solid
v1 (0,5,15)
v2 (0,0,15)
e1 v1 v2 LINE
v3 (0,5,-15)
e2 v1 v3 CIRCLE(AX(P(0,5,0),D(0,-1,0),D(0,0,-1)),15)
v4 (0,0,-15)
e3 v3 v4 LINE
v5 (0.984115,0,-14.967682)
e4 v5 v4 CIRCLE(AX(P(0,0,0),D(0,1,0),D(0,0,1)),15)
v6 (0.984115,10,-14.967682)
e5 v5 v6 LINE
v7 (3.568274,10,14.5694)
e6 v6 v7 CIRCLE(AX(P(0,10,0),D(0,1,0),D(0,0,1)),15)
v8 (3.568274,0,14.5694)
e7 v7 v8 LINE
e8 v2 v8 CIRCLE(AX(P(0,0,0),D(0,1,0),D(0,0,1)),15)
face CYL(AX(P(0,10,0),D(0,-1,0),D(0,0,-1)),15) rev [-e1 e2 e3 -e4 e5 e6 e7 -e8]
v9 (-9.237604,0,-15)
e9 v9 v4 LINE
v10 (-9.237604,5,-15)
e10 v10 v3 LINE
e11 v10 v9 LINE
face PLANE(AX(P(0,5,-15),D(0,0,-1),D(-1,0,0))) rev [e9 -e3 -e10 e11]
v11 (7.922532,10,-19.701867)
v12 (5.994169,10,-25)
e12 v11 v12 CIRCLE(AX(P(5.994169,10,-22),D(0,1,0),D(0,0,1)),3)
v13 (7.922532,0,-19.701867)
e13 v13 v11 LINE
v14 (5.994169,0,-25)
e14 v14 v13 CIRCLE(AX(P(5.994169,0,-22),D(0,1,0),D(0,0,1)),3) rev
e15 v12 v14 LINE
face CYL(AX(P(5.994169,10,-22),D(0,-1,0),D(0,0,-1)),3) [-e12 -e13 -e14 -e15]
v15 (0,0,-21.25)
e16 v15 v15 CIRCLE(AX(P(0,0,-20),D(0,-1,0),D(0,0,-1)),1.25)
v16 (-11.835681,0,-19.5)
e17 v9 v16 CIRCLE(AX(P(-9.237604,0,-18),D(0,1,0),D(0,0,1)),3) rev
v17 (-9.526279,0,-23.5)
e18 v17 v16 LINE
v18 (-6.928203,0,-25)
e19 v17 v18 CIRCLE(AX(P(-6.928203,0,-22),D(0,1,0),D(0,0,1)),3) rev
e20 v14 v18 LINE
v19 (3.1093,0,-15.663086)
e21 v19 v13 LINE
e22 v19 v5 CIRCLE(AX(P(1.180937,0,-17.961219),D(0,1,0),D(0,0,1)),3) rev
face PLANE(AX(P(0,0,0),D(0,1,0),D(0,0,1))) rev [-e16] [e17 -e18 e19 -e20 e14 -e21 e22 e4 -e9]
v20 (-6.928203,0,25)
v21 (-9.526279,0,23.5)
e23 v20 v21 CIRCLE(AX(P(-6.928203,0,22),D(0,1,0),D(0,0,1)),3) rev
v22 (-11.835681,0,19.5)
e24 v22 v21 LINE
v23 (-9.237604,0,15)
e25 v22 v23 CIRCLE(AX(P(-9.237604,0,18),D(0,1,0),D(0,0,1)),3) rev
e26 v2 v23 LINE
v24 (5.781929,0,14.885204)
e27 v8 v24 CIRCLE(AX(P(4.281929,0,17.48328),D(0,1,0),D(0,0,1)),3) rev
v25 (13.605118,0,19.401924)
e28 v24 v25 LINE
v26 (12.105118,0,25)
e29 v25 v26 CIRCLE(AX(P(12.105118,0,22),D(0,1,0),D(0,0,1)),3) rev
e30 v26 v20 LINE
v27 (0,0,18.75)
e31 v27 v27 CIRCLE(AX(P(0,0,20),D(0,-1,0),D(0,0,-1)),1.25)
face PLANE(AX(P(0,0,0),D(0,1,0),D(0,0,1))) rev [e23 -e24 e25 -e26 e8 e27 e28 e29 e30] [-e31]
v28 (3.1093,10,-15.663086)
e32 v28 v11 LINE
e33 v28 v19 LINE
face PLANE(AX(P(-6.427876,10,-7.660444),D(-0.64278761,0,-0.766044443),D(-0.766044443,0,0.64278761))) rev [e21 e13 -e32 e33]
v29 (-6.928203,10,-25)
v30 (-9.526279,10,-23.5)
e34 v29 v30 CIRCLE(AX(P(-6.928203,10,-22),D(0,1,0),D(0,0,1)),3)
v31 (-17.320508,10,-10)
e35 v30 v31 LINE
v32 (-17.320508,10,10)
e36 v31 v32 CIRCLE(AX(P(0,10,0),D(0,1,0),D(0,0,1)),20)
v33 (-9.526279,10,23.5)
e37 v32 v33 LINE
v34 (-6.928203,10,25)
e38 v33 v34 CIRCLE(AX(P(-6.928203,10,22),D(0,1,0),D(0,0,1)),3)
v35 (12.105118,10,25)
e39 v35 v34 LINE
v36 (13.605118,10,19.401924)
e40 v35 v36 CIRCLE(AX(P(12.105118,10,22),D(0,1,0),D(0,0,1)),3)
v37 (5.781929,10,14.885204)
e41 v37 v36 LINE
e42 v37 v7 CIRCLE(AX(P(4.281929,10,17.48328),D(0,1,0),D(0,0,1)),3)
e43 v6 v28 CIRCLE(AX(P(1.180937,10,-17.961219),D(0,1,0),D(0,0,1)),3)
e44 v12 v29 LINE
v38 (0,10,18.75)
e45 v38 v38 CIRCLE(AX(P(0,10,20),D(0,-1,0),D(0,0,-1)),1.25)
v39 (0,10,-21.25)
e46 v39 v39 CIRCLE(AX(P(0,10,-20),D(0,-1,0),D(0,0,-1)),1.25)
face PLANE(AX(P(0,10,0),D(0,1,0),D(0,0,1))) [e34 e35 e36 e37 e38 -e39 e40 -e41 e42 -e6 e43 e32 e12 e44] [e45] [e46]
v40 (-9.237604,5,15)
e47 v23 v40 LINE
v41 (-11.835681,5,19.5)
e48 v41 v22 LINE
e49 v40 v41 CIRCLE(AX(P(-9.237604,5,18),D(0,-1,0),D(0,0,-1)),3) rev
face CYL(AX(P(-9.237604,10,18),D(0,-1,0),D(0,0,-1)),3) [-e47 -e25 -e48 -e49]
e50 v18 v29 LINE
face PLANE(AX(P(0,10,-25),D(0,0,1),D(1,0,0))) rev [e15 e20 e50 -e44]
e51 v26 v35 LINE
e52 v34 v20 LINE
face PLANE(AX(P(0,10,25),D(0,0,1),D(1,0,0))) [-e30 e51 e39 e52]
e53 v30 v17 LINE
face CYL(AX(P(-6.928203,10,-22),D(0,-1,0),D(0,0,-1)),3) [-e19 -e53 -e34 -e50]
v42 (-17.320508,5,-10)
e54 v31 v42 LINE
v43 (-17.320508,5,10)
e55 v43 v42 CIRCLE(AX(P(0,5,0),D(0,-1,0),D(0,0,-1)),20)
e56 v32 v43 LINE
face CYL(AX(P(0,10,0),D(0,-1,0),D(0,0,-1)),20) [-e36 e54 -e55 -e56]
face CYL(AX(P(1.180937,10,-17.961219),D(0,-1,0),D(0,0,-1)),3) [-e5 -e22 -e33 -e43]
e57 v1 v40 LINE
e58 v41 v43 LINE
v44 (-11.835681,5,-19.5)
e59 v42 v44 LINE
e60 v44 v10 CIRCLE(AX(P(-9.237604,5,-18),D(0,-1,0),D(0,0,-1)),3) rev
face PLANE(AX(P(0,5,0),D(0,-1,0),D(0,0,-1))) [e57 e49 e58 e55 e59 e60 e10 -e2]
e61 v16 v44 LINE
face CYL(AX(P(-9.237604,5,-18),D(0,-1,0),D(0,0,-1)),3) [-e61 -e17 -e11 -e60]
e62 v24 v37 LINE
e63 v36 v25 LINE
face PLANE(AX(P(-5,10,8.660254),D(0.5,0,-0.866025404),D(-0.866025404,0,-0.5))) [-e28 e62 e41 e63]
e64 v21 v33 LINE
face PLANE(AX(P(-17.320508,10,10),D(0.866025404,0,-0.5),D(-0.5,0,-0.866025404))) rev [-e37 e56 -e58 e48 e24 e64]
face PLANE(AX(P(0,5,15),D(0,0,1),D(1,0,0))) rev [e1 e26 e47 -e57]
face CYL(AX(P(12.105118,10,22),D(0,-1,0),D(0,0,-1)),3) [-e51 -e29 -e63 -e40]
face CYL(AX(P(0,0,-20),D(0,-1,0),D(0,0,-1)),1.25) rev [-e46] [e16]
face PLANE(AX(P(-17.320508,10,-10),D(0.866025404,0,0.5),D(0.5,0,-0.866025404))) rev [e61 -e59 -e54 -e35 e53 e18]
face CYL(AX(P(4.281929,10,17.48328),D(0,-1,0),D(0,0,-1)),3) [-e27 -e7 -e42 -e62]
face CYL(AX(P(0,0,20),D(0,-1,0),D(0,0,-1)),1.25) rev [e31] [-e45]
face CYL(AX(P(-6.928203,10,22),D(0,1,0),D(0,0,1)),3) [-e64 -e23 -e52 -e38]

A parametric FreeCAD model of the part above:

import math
import FreeCAD as App
import Part
import Sketcher

V = App.Vector
Q = App.Units.Quantity


def edges_at(feature, points):
    """Names of the edges that pass closest to the given points."""
    edges = feature.Shape.Edges
    near = lambda p: min(range(len(edges)), key=lambda i: edges[i].distToShape(Part.Vertex(*p))[0])
    return sorted({f"Edge{near(p) + 1}" for p in points})

doc = App.newDocument("Part")
body = doc.addObject("PartDesign::Body", "Body")

sketch1 = body.newObject("Sketcher::SketchObject", "Sketch")
sketch1.AttachmentSupport = (doc.getObject("XZ_Plane"), [""])
sketch1.MapMode = "FlatFace"
sketch1.addGeometry([
    Part.LineSegment(V(7, -19, 0), V(14, -25, 0)),
    Part.LineSegment(V(14, -25, 0), V(-9, -25, 0)),
    Part.LineSegment(V(-9, -25, 0), V(-17, -10, 0)),
    Part.ArcOfCircle(Part.Circle(V(0, 0, 0), V(0, 0, 1), 20), math.radians(150), math.radians(210)),
    Part.LineSegment(V(-17, 10, 0), V(-9, 25, 0)),
    Part.LineSegment(V(-9, 25, 0), V(23, 25, 0)),
    Part.LineSegment(V(23, 25, 0), V(10, 17, 0)),
    Part.LineSegment(V(10, 17, 0), V(5, 14, 0)),
    Part.ArcOfCircle(Part.Circle(V(0, 0, 0), V(0, 0, 1), 15), math.radians(72), math.radians(278)),
    Part.LineSegment(V(2, -15, 0), V(7, -19, 0)),
], False)
sketch1.addConstraint([
    Sketcher.Constraint("Coincident", 0, 2, 1, 1),
    Sketcher.Constraint("Coincident", 1, 2, 2, 1),
    Sketcher.Constraint("Tangent", 2, 2, 3, 2),
    Sketcher.Constraint("Tangent", 3, 1, 4, 1),
    Sketcher.Constraint("Coincident", 4, 2, 5, 1),
    Sketcher.Constraint("Coincident", 5, 2, 6, 1),
    Sketcher.Constraint("Coincident", 6, 2, 7, 1),
    Sketcher.Constraint("Coincident", 7, 2, 8, 1),
    Sketcher.Constraint("Coincident", 8, 2, 9, 1),
    Sketcher.Constraint("Coincident", 9, 2, 0, 1),
    Sketcher.Constraint("Horizontal", 1),
    Sketcher.Constraint("Horizontal", 5),
    Sketcher.Constraint("Coincident", 3, 3, -1, 1),
    Sketcher.Constraint("Coincident", 8, 3, -1, 1),
    Sketcher.Constraint("Symmetric", 1, 2, 4, 2, -1),
    Sketcher.Constraint("Perpendicular", 2, 6),
    Sketcher.Constraint("Parallel", 6, 7),
    Sketcher.Constraint("Parallel", 0, 9),
    Sketcher.Constraint("Equal", 7, 9),
    Sketcher.Constraint("Radius", 3, 20.0),
    Sketcher.Constraint("Radius", 8, 15.0),
    Sketcher.Constraint("Angle", 0, Q("-40 deg")),
    Sketcher.Constraint("Angle", 2, Q("120 deg")),
    Sketcher.Constraint("DistanceY", 0, 2, -1, 1, 25.0),
    Sketcher.Constraint("DistanceX", -1, 1, 6, 2, 10.0),
    Sketcher.Constraint("DistanceX", -1, 1, 0, 2, 14.236602),
    Sketcher.Constraint("DistanceX", 9, 2, 0, 2, 7.396199),
])
pad1 = body.newObject("PartDesign::Pad", "Pad")
pad1.Profile = sketch1
pad1.Length = 10
pad1.Reversed = True

sketch2 = body.newObject("Sketcher::SketchObject", "Sketch001")
sketch2.AttachmentSupport = (doc.getObject("XZ_Plane"), [""])
sketch2.MapMode = "FlatFace"
sketch2.addGeometry([
    Part.Circle(V(0, 20, 0), V(0, 0, 1), 1.2),
    Part.Circle(V(0, -20, 0), V(0, 0, 1), 1.2),
], False)
sketch2.addConstraint([
    Sketcher.Constraint("Equal", 0, 1),
    Sketcher.Constraint("Symmetric", 0, 3, 1, 3, -1, 1),
    Sketcher.Constraint("PointOnObject", 0, 3, -2),
    Sketcher.Constraint("Diameter", 0, 2.5),
    Sketcher.Constraint("DistanceY", -1, 1, 0, 3, 20.0),
])
doc.recompute()
hole = body.newObject("PartDesign::Hole", "Hole")
hole.Profile = sketch2
hole.ThreadType = "None"
hole.Diameter = 2.5
hole.DepthType = "ThroughAll"

sketch3 = body.newObject("Sketcher::SketchObject", "Sketch002")
sketch3.AttachmentSupport = (doc.getObject("XZ_Plane"), [""])
sketch3.MapMode = "FlatFace"
sketch3.addGeometry([
    Part.LineSegment(V(0, 15, 0), V(-14, 15, 0)),
    Part.LineSegment(V(-14, 15, 0), V(-17, 10, 0)),
    Part.ArcOfCircle(Part.Circle(V(0, 0, 0), V(0, 0, 1), 20), math.radians(150), math.radians(210)),
    Part.LineSegment(V(-17, -10, 0), V(-14, -15, 0)),
    Part.LineSegment(V(-14, -15, 0), V(0, -15, 0)),
    Part.LineSegment(V(0, -15, 0), V(0, 15, 0)),
], False)
sketch3.addConstraint([
    Sketcher.Constraint("Coincident", 0, 2, 1, 1),
    Sketcher.Constraint("Tangent", 1, 2, 2, 1),
    Sketcher.Constraint("Tangent", 2, 2, 3, 1),
    Sketcher.Constraint("Coincident", 3, 2, 4, 1),
    Sketcher.Constraint("Coincident", 4, 2, 5, 1),
    Sketcher.Constraint("Coincident", 5, 2, 0, 1),
    Sketcher.Constraint("Horizontal", 0),
    Sketcher.Constraint("Horizontal", 4),
    Sketcher.Constraint("Vertical", 5),
    Sketcher.Constraint("Coincident", 2, 3, -1, 1),
    Sketcher.Constraint("Symmetric", 4, 2, 5, 2, -1, 1),
    Sketcher.Constraint("Vertical", 1, 2, 2, 2),
    Sketcher.Constraint("Radius", 2, 20.0),
    Sketcher.Constraint("DistanceY", 5, 1, 5, 2, 30.0),
    Sketcher.Constraint("Angle", 1, Q("-120 deg")),
])
pocket1 = body.newObject("PartDesign::Pocket", "Pocket")
pocket1.Profile = sketch3
pocket1.Length = 5
doc.recompute()

fillet = body.newObject("PartDesign::Fillet", "Fillet")
fillet.Base = (pocket1, edges_at(pocket1, [
    (-8.66, 5, -25),
    (14.237, 5, -25),
    (2.137, 5, -14.847),
    (4.682, 5, 14.25),
    (23.301, 5, 25),
    (-8.66, 5, 25),
    (-14.434, 2.5, -15),
    (-14.434, 2.5, 15),
]))
fillet.Radius = 3

doc.recompute()
